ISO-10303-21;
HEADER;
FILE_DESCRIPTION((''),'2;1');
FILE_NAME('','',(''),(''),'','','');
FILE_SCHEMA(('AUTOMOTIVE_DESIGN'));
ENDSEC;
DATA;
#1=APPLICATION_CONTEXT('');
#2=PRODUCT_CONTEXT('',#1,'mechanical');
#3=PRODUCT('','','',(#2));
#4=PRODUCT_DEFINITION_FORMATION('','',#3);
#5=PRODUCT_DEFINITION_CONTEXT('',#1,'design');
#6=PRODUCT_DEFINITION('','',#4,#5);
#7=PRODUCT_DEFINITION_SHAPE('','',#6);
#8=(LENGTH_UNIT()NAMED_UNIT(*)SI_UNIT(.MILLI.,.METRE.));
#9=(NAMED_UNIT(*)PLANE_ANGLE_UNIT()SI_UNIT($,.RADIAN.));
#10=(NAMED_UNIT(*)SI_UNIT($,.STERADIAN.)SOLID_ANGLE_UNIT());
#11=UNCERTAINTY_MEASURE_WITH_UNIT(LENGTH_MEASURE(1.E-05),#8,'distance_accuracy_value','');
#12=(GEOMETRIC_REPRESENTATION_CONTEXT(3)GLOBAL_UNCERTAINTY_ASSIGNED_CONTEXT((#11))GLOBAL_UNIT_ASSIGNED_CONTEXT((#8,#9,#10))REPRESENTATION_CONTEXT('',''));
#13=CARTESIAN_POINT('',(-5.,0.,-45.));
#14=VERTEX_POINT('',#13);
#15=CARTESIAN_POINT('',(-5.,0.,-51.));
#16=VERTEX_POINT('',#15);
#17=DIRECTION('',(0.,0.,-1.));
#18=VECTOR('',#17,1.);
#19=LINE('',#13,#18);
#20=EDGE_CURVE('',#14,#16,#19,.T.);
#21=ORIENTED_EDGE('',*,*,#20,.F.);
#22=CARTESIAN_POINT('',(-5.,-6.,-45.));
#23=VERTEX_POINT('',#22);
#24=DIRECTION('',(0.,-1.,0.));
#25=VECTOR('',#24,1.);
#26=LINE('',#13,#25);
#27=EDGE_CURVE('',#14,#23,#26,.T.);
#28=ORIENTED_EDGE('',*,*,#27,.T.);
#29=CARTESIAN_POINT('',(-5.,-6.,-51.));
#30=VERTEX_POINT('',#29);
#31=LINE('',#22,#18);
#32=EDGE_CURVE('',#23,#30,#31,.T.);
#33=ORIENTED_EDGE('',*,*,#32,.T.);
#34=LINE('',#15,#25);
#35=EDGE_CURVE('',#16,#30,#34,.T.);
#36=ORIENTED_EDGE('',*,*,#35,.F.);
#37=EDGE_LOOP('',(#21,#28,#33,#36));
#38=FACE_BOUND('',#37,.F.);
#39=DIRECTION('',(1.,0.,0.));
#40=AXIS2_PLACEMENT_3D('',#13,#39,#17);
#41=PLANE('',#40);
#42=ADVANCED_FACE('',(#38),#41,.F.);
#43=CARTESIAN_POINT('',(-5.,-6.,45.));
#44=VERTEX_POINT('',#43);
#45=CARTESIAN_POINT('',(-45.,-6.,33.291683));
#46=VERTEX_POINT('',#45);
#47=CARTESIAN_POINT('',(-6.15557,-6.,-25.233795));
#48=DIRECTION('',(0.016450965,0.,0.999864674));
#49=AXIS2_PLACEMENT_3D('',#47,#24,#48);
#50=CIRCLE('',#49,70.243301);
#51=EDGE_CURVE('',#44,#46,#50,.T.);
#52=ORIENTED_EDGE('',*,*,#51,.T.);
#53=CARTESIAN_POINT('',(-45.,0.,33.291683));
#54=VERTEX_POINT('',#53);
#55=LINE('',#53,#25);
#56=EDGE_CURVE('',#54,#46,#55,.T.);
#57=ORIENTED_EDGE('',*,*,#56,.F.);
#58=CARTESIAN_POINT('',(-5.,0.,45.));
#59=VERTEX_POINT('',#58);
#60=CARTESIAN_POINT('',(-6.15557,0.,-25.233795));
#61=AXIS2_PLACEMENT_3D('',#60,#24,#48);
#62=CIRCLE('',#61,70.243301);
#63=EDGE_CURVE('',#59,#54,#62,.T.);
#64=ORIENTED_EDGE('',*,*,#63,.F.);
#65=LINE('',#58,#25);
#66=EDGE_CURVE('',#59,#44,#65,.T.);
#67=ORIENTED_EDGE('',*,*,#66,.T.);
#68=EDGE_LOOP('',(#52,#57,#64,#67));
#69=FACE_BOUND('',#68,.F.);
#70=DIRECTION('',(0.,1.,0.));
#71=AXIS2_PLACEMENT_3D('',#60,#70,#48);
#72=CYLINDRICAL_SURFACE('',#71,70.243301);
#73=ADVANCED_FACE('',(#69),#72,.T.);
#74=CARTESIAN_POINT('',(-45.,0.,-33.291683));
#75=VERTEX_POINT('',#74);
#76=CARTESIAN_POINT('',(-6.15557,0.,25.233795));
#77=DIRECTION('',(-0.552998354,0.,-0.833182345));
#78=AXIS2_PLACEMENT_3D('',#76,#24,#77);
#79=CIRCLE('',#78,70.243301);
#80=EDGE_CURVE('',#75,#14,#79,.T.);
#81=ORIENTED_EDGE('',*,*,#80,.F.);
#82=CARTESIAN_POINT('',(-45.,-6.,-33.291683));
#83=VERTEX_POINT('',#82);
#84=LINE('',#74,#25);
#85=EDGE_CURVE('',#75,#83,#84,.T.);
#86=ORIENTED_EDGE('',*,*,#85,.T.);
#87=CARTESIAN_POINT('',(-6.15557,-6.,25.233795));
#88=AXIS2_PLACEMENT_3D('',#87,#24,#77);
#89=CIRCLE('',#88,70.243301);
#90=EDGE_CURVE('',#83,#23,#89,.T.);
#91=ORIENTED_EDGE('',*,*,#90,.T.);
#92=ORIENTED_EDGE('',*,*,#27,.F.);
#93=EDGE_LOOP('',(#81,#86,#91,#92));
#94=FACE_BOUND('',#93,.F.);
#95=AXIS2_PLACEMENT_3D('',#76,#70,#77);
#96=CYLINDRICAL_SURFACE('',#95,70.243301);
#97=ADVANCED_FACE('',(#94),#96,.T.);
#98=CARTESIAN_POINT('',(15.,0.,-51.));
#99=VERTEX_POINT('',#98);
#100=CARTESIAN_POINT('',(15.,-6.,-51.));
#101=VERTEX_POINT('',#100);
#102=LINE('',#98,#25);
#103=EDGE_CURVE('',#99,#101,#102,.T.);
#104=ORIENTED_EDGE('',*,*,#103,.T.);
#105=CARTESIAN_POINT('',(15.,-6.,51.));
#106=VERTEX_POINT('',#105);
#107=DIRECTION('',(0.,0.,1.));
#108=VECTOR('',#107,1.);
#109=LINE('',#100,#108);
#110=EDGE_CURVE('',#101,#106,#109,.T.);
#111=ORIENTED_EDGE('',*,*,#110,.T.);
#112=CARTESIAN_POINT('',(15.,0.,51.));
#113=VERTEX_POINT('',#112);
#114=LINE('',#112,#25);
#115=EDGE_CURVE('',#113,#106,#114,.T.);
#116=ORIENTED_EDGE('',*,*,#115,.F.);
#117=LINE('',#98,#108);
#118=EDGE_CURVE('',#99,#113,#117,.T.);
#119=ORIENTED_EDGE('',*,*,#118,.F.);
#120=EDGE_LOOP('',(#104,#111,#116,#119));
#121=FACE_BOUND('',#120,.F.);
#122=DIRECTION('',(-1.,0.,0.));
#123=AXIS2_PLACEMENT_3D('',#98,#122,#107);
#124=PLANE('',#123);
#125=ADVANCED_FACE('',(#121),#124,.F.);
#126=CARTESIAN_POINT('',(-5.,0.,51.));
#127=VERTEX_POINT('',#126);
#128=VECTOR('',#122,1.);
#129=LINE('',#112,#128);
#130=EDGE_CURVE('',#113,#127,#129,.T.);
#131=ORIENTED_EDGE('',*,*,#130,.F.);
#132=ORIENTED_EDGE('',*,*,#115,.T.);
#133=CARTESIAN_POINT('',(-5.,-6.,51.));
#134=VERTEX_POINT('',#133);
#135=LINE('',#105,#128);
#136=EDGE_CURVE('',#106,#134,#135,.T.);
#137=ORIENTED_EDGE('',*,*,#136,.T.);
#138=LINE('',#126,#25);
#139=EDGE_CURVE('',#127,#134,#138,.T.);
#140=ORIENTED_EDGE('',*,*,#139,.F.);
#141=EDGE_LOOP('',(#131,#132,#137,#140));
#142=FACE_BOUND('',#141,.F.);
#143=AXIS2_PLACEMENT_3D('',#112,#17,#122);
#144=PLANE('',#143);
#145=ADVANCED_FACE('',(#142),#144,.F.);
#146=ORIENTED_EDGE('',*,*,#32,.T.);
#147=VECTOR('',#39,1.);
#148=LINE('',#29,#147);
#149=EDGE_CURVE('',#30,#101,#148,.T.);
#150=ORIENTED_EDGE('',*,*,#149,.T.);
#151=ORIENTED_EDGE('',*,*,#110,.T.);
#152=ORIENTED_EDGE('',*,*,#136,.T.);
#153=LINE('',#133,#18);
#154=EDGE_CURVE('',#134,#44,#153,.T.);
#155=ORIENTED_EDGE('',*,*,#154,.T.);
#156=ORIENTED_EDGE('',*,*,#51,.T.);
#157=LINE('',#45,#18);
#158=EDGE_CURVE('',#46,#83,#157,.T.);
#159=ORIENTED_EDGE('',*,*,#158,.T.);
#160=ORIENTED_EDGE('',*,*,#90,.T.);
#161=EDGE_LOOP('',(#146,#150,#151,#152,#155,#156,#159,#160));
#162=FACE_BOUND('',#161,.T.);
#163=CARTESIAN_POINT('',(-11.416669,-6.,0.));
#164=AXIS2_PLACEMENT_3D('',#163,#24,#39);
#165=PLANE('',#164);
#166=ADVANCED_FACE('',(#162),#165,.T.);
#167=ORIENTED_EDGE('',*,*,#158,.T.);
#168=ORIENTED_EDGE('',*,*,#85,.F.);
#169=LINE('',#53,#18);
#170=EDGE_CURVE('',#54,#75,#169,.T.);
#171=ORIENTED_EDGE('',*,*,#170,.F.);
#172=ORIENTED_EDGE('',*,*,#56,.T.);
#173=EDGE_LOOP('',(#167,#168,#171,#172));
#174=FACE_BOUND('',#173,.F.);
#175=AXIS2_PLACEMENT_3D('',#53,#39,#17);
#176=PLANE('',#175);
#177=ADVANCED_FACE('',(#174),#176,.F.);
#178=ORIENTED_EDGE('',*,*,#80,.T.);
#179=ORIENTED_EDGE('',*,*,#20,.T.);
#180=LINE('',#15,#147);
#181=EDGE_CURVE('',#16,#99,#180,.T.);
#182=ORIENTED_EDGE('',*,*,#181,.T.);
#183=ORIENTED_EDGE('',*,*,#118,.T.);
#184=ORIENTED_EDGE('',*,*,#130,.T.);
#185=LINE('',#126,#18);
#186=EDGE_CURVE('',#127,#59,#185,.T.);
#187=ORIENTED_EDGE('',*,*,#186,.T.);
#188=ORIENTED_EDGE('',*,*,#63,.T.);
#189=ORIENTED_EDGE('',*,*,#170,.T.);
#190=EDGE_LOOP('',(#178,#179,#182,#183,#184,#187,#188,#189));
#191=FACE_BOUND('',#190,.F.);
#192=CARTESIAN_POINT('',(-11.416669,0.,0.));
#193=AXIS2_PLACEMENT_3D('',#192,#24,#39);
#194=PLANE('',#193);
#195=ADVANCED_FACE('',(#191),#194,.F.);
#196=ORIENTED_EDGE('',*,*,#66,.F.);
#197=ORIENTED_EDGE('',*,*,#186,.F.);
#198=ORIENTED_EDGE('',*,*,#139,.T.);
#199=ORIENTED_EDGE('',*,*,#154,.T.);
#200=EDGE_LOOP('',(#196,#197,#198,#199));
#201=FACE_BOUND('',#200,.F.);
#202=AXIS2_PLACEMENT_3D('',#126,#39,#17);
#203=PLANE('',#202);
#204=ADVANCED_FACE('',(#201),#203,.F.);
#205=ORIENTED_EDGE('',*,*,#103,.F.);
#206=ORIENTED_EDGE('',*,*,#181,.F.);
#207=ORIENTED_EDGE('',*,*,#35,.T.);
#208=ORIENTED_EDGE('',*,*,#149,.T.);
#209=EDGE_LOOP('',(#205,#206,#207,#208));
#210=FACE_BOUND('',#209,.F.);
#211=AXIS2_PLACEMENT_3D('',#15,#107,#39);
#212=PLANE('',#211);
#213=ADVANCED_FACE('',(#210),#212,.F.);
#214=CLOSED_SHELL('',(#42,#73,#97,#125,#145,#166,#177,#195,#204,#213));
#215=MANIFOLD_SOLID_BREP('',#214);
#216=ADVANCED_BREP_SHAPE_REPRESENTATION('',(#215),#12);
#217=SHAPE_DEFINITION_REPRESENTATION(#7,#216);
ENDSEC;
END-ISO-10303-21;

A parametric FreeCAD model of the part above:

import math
import FreeCAD as App
import Part
import Sketcher

V = App.Vector
Q = App.Units.Quantity

doc = App.newDocument("Part")
body = doc.addObject("PartDesign::Body", "Body")

sketch1 = body.newObject("Sketcher::SketchObject", "Sketch")
sketch1.AttachmentSupport = (doc.getObject("XZ_Plane"), [""])
sketch1.MapMode = "FlatFace"
sketch1.addGeometry([
    Part.LineSegment(V(-45, 33, 0), V(-45, -33, 0)),
    Part.ArcOfCircle(Part.Circle(V(-6, 25, 0), V(0, 0, 1), 70), math.radians(-124), math.radians(-89)),
    Part.LineSegment(V(-5, -45, 0), V(-5, -51, 0)),
    Part.LineSegment(V(-5, -51, 0), V(15, -51, 0)),
    Part.LineSegment(V(15, -51, 0), V(15, 51, 0)),
    Part.LineSegment(V(15, 51, 0), V(-5, 51, 0)),
    Part.LineSegment(V(-5, 51, 0), V(-5, 45, 0)),
    Part.ArcOfCircle(Part.Circle(V(-6, -25, 0), V(0, 0, 1), 70), math.radians(89), math.radians(124)),
], False)
sketch1.addConstraint([
    Sketcher.Constraint("Coincident", 0, 2, 1, 1),
    Sketcher.Constraint("Coincident", 1, 2, 2, 1),
    Sketcher.Constraint("Coincident", 2, 2, 3, 1),
    Sketcher.Constraint("Coincident", 3, 2, 4, 1),
    Sketcher.Constraint("Coincident", 4, 2, 5, 1),
    Sketcher.Constraint("Coincident", 5, 2, 6, 1),
    Sketcher.Constraint("Coincident", 6, 2, 7, 1),
    Sketcher.Constraint("Coincident", 7, 2, 0, 1),
    Sketcher.Constraint("Vertical", 0),
    Sketcher.Constraint("Vertical", 2),
    Sketcher.Constraint("Horizontal", 3),
    Sketcher.Constraint("Vertical", 4),
    Sketcher.Constraint("Horizontal", 5),
    Sketcher.Constraint("Vertical", 6),
    Sketcher.Constraint("Equal", 1, 7),
    Sketcher.Constraint("Symmetric", 1, 3, 7, 3, -1),
    Sketcher.Constraint("Symmetric", 2, 2, 5, 2, -1),
    Sketcher.Constraint("DistanceX", 3, 1, 3, 2, Q("20 mm")),
    Sketcher.Constraint("DistanceY", 2, 2, 2, 1, Q("6 mm")),
    Sketcher.Constraint("DistanceY", 4, 1, 4, 2, Q("102 mm")),
    Sketcher.Constraint("DistanceX", 0, 2, -1, 1, Q("45 mm")),
    Sketcher.Constraint("DistanceX", 1, 2, -1, 1, Q("5 mm")),
    Sketcher.Constraint("Radius", 1, Q("70.243301 mm")),
    Sketcher.Constraint("DistanceY", 0, 2, 0, 1, Q("66.583366 mm")),
])
pad1 = body.newObject("PartDesign::Pad", "Pad")
pad1.Profile = sketch1
pad1.Length = 6

doc.recompute()
